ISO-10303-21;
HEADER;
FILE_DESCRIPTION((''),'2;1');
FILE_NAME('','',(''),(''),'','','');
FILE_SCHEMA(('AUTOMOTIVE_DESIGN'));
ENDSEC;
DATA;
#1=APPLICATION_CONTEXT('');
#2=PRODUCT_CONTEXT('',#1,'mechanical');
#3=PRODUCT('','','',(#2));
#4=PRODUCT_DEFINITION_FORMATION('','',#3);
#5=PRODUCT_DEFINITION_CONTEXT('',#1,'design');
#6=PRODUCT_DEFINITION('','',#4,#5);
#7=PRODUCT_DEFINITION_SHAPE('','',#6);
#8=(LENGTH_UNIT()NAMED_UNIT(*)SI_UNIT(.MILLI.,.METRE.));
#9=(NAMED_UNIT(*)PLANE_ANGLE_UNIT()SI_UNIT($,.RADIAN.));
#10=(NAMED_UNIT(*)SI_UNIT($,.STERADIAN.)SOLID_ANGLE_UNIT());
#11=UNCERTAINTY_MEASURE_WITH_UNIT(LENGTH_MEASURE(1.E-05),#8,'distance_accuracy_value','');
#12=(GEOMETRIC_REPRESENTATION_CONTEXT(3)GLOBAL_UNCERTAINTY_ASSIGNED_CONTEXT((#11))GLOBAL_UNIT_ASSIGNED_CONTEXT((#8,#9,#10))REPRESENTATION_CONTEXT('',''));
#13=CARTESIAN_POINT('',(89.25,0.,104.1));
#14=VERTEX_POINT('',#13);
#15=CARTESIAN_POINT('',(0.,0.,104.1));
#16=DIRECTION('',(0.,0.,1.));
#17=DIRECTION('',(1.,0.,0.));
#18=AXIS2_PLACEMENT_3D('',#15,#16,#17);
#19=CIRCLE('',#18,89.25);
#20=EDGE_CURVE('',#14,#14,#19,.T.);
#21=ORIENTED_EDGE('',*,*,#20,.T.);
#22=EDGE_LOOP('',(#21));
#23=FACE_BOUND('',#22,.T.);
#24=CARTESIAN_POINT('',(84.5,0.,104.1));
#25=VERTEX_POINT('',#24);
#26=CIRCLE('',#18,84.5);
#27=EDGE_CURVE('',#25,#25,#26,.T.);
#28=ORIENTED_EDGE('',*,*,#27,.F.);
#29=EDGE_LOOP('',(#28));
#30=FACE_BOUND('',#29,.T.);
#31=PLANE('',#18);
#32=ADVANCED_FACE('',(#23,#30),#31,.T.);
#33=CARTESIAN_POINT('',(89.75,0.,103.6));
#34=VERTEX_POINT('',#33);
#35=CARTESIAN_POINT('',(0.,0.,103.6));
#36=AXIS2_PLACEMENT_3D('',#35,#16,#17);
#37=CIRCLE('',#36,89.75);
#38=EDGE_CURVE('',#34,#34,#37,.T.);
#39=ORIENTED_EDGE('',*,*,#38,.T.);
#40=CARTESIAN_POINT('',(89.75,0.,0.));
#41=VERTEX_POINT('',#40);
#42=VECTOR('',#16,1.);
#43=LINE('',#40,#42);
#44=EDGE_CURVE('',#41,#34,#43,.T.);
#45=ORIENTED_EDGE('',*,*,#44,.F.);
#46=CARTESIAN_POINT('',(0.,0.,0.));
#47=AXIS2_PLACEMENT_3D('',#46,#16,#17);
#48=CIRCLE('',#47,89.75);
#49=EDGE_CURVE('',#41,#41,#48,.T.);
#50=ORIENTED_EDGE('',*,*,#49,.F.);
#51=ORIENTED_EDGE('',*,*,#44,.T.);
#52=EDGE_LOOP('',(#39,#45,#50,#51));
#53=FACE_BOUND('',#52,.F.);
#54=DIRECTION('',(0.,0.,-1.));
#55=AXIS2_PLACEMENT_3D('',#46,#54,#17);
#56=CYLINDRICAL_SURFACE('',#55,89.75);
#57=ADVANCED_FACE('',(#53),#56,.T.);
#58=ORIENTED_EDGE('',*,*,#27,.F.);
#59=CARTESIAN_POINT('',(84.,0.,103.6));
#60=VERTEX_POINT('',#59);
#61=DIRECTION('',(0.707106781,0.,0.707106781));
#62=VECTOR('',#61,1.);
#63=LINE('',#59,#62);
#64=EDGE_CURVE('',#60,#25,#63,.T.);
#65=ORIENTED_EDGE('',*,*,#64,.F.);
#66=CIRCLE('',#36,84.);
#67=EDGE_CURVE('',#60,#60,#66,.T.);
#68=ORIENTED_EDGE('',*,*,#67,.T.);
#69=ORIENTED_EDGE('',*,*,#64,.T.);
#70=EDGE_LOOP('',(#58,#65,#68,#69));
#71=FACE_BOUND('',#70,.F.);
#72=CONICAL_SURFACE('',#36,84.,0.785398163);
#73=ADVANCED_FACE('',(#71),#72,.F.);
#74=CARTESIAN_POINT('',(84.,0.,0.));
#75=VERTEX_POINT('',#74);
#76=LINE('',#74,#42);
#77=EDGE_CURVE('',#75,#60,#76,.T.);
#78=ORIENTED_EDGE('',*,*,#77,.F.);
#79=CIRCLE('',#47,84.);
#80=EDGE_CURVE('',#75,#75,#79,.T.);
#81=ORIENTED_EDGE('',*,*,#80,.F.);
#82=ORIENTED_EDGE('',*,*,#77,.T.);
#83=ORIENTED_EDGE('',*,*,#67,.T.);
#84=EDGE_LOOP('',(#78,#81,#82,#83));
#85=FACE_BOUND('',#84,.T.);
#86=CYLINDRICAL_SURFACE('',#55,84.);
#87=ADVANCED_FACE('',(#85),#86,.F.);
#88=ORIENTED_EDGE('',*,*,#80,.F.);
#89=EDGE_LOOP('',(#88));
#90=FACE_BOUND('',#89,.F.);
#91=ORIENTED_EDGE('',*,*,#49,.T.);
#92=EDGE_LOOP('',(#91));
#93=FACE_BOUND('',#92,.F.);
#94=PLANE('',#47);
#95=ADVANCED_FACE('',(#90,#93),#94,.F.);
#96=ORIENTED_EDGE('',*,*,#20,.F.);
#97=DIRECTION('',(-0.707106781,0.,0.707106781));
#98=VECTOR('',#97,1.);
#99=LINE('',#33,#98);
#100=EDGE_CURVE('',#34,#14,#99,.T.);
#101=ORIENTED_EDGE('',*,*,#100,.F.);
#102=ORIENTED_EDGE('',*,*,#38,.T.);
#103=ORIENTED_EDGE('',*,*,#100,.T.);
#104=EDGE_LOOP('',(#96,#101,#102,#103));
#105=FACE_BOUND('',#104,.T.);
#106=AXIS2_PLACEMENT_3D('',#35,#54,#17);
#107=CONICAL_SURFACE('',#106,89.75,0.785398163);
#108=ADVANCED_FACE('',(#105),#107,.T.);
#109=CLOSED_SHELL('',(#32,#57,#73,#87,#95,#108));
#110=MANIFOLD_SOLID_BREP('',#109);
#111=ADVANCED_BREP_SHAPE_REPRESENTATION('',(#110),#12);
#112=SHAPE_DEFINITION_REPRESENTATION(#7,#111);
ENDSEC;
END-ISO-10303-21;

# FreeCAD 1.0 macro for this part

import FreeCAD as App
import Part
import Sketcher
Q = App.Units.Quantity


def edges_at(feature, points):
    """Names of the edges that pass closest to the given points."""
    edges = feature.Shape.Edges
    near = lambda p: min(range(len(edges)), key=lambda i: edges[i].distToShape(Part.Vertex(*p))[0])
    return sorted({f"Edge{near(p) + 1}" for p in points})

doc = App.newDocument("Part")
body = doc.addObject("PartDesign::Body", "Body")

sketch1 = body.newObject("Sketcher::SketchObject", "Sketch")
sketch1.AttachmentSupport = (doc.getObject("XY_Plane"), [""])
sketch1.MapMode = "FlatFace"
sketch1.addGeometry([
    Part.Circle(App.Vector(0, 0, 0), App.Vector(0, 0, 1), 90),
    Part.Circle(App.Vector(0, 0, 0), App.Vector(0, 0, 1), 84),
], False)
sketch1.addConstraint([
    Sketcher.Constraint("Coincident", 0, 3, -1, 1),
    Sketcher.Constraint("Coincident", 1, 3, -1, 1),
    Sketcher.Constraint("Diameter", 0, Q("179.5 mm")),
    Sketcher.Constraint("Diameter", 1, Q("168 mm")),
])
pad1 = body.newObject("PartDesign::Pad", "Pad")
pad1.Profile = sketch1
pad1.Length = 104.1
doc.recompute()

chamfer = body.newObject("PartDesign::Chamfer", "Chamfer")
chamfer.Base = (pad1, edges_at(pad1, [(-84, 0, 104.1), (-89.75, 0, 104.1)]))
chamfer.Size = 0.5

doc.recompute()
